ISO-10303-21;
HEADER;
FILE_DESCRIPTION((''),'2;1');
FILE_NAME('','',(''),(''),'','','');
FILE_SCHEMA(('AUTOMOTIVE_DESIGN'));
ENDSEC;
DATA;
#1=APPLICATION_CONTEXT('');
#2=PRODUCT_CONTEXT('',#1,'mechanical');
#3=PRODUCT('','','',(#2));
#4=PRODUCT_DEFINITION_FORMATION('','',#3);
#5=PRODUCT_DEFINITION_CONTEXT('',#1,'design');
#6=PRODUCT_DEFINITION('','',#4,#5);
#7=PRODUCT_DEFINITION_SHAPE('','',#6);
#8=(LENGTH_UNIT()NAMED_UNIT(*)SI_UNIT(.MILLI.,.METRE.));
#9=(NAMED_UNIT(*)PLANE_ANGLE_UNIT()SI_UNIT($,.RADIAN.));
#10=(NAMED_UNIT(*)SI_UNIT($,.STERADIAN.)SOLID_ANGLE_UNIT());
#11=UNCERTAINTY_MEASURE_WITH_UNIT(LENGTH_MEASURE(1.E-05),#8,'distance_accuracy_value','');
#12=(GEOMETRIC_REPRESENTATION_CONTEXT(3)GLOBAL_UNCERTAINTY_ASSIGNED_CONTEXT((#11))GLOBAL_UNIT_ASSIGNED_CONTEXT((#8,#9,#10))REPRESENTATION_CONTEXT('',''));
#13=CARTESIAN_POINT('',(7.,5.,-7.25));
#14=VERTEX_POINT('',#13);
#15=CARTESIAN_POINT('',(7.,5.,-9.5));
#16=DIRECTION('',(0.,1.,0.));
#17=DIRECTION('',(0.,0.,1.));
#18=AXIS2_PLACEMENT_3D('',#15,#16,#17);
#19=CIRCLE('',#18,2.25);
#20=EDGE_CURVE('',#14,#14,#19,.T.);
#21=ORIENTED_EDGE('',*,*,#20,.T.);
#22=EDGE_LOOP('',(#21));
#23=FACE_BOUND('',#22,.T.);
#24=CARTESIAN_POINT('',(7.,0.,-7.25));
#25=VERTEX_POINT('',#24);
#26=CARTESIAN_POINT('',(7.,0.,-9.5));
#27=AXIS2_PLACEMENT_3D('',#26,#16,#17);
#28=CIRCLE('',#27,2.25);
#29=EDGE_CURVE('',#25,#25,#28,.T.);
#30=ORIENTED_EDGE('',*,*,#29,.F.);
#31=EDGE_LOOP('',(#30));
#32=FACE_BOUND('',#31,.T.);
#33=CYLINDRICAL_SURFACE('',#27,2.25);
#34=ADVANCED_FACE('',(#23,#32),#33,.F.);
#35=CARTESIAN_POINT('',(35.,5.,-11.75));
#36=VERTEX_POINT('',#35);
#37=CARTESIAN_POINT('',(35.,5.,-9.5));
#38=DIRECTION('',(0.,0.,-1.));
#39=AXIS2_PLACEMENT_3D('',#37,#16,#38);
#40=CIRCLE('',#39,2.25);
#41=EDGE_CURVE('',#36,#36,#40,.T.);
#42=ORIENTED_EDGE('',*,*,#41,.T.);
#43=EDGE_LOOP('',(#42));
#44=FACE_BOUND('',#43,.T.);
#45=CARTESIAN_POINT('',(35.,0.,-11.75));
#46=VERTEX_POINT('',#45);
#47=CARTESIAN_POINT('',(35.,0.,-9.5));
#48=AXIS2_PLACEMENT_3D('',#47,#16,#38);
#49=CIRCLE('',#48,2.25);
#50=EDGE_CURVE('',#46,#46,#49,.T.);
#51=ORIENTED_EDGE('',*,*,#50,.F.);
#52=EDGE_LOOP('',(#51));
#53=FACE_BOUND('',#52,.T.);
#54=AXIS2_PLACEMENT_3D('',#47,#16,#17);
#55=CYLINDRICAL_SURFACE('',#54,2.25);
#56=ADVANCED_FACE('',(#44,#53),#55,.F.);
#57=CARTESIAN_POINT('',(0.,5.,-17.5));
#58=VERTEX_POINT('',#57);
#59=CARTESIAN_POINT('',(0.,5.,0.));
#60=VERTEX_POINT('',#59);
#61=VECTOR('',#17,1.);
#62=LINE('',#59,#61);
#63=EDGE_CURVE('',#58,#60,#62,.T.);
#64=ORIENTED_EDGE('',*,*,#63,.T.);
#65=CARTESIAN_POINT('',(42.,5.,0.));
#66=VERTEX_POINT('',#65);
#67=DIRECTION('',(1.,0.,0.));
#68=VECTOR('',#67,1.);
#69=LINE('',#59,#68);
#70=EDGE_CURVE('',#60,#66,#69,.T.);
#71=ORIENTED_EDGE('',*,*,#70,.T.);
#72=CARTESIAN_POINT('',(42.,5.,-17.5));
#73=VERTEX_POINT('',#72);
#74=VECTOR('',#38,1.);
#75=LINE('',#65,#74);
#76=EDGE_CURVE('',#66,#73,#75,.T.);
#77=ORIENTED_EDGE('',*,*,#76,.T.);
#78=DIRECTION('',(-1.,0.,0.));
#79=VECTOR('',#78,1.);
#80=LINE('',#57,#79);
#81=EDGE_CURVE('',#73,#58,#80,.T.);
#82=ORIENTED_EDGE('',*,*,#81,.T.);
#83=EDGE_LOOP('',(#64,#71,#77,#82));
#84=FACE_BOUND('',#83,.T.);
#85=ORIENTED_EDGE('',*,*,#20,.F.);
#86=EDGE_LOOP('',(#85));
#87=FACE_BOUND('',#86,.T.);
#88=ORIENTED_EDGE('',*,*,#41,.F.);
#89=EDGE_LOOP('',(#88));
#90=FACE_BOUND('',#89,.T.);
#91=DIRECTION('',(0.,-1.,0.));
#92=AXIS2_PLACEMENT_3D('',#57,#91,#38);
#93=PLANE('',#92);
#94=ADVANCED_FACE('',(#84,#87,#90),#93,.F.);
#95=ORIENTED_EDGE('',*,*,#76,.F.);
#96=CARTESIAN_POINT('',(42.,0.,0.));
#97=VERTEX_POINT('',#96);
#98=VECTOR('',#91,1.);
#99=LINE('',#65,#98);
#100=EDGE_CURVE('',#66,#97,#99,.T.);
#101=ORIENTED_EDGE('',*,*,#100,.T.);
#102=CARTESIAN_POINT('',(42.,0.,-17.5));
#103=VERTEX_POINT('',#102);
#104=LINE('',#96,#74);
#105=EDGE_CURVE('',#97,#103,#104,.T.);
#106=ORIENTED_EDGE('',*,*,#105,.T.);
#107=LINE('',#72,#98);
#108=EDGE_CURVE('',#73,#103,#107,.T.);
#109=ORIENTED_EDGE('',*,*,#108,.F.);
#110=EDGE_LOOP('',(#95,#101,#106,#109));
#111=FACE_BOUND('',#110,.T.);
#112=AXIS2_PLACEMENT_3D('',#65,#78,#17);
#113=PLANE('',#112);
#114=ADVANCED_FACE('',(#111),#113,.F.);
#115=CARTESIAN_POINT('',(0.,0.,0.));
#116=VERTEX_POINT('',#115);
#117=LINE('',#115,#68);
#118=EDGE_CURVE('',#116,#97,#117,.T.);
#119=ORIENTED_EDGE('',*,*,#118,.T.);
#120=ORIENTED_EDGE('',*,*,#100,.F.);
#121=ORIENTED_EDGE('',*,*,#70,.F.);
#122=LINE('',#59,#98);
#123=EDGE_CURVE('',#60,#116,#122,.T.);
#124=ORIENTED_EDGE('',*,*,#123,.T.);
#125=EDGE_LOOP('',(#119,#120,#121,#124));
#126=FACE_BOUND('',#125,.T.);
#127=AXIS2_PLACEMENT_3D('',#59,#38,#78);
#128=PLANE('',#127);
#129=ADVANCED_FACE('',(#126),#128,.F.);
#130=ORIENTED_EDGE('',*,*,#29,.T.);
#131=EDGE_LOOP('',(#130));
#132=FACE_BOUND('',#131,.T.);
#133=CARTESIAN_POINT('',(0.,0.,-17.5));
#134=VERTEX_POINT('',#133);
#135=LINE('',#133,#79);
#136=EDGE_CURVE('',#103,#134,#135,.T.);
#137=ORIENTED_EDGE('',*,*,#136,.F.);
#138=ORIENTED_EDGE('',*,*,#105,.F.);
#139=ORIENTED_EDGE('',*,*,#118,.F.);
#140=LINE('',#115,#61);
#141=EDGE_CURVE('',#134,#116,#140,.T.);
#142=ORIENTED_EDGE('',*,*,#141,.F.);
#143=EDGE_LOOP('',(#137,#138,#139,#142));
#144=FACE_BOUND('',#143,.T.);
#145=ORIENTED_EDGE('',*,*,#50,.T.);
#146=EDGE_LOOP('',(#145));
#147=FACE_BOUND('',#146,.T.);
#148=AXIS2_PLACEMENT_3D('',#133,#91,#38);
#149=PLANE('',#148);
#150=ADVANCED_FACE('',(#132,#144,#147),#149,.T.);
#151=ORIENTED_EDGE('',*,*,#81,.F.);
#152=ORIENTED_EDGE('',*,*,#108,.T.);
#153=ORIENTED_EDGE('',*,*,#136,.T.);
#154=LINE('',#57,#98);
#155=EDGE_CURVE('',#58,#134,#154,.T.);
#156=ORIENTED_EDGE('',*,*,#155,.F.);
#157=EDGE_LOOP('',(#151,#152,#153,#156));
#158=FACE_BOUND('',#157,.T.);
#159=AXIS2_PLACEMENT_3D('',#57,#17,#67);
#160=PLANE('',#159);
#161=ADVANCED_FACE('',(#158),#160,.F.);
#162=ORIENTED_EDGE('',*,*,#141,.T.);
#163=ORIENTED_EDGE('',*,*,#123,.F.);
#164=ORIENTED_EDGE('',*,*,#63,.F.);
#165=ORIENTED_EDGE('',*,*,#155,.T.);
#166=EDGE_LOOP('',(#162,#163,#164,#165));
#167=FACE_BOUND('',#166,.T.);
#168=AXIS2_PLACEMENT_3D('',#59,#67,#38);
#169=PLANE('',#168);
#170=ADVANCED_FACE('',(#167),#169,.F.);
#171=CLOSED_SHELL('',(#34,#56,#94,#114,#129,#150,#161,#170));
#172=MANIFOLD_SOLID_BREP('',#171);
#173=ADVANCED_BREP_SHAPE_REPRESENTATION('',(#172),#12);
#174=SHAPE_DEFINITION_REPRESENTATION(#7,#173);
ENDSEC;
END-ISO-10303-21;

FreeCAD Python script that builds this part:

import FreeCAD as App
import Part
import Sketcher

V = App.Vector
Q = App.Units.Quantity

doc = App.newDocument("Part")
body = doc.addObject("PartDesign::Body", "Body")

sketch1 = body.newObject("Sketcher::SketchObject", "Sketch")
sketch1.AttachmentSupport = (doc.getObject("XZ_Plane"), [""])
sketch1.MapMode = "FlatFace"
sketch1.addGeometry([
    Part.LineSegment(V(0, -18, 0), V(0, 0, 0)),
    Part.LineSegment(V(0, 0, 0), V(42, 0, 0)),
    Part.LineSegment(V(42, 0, 0), V(42, -18, 0)),
    Part.LineSegment(V(42, -18, 0), V(0, -18, 0)),
], False)
sketch1.addConstraint([
    Sketcher.Constraint("Coincident", 0, 2, 1, 1),
    Sketcher.Constraint("Coincident", 1, 2, 2, 1),
    Sketcher.Constraint("Coincident", 2, 2, 3, 1),
    Sketcher.Constraint("Coincident", 3, 2, 0, 1),
    Sketcher.Constraint("Vertical", 0),
    Sketcher.Constraint("Horizontal", 1),
    Sketcher.Constraint("Vertical", 2),
    Sketcher.Constraint("Horizontal", 3),
    Sketcher.Constraint("Coincident", 0, 2, -1, 1),
    Sketcher.Constraint("DistanceX", 1, 1, 1, 2, Q("42 mm")),
    Sketcher.Constraint("DistanceY", 0, 1, 0, 2, Q("17.5 mm")),
])
pad1 = body.newObject("PartDesign::Pad", "Pad")
pad1.Profile = sketch1
pad1.Length = 5
pad1.Reversed = True

sketch2 = body.newObject("Sketcher::SketchObject", "Sketch001")
sketch2.AttachmentSupport = (doc.getObject("XZ_Plane"), [""])
sketch2.MapMode = "FlatFace"
sketch2.AttachmentOffset = App.Placement(V(0, 0, -5), App.Rotation())
sketch2.addGeometry([
    Part.Circle(V(7, -9.5, 0), V(0, 0, 1), 2.2),
    Part.Circle(V(35, -9.5, 0), V(0, 0, 1), 2.2),
], False)
sketch2.addConstraint([
    Sketcher.Constraint("Equal", 0, 1),
    Sketcher.Constraint("Horizontal", 0, 3, 1, 3),
    Sketcher.Constraint("Diameter", 0, Q("4.5 mm")),
    Sketcher.Constraint("DistanceX", -1, 1, 0, 3, Q("7 mm")),
    Sketcher.Constraint("DistanceX", -1, 1, 1, 3, Q("35 mm")),
    Sketcher.Constraint("DistanceY", 0, 3, -1, 1, Q("9.5 mm")),
])
pocket1 = body.newObject("PartDesign::Pocket", "Pocket")
pocket1.Profile = sketch2
pocket1.Type = "ThroughAll"
pocket1.Reversed = True

doc.recompute()
